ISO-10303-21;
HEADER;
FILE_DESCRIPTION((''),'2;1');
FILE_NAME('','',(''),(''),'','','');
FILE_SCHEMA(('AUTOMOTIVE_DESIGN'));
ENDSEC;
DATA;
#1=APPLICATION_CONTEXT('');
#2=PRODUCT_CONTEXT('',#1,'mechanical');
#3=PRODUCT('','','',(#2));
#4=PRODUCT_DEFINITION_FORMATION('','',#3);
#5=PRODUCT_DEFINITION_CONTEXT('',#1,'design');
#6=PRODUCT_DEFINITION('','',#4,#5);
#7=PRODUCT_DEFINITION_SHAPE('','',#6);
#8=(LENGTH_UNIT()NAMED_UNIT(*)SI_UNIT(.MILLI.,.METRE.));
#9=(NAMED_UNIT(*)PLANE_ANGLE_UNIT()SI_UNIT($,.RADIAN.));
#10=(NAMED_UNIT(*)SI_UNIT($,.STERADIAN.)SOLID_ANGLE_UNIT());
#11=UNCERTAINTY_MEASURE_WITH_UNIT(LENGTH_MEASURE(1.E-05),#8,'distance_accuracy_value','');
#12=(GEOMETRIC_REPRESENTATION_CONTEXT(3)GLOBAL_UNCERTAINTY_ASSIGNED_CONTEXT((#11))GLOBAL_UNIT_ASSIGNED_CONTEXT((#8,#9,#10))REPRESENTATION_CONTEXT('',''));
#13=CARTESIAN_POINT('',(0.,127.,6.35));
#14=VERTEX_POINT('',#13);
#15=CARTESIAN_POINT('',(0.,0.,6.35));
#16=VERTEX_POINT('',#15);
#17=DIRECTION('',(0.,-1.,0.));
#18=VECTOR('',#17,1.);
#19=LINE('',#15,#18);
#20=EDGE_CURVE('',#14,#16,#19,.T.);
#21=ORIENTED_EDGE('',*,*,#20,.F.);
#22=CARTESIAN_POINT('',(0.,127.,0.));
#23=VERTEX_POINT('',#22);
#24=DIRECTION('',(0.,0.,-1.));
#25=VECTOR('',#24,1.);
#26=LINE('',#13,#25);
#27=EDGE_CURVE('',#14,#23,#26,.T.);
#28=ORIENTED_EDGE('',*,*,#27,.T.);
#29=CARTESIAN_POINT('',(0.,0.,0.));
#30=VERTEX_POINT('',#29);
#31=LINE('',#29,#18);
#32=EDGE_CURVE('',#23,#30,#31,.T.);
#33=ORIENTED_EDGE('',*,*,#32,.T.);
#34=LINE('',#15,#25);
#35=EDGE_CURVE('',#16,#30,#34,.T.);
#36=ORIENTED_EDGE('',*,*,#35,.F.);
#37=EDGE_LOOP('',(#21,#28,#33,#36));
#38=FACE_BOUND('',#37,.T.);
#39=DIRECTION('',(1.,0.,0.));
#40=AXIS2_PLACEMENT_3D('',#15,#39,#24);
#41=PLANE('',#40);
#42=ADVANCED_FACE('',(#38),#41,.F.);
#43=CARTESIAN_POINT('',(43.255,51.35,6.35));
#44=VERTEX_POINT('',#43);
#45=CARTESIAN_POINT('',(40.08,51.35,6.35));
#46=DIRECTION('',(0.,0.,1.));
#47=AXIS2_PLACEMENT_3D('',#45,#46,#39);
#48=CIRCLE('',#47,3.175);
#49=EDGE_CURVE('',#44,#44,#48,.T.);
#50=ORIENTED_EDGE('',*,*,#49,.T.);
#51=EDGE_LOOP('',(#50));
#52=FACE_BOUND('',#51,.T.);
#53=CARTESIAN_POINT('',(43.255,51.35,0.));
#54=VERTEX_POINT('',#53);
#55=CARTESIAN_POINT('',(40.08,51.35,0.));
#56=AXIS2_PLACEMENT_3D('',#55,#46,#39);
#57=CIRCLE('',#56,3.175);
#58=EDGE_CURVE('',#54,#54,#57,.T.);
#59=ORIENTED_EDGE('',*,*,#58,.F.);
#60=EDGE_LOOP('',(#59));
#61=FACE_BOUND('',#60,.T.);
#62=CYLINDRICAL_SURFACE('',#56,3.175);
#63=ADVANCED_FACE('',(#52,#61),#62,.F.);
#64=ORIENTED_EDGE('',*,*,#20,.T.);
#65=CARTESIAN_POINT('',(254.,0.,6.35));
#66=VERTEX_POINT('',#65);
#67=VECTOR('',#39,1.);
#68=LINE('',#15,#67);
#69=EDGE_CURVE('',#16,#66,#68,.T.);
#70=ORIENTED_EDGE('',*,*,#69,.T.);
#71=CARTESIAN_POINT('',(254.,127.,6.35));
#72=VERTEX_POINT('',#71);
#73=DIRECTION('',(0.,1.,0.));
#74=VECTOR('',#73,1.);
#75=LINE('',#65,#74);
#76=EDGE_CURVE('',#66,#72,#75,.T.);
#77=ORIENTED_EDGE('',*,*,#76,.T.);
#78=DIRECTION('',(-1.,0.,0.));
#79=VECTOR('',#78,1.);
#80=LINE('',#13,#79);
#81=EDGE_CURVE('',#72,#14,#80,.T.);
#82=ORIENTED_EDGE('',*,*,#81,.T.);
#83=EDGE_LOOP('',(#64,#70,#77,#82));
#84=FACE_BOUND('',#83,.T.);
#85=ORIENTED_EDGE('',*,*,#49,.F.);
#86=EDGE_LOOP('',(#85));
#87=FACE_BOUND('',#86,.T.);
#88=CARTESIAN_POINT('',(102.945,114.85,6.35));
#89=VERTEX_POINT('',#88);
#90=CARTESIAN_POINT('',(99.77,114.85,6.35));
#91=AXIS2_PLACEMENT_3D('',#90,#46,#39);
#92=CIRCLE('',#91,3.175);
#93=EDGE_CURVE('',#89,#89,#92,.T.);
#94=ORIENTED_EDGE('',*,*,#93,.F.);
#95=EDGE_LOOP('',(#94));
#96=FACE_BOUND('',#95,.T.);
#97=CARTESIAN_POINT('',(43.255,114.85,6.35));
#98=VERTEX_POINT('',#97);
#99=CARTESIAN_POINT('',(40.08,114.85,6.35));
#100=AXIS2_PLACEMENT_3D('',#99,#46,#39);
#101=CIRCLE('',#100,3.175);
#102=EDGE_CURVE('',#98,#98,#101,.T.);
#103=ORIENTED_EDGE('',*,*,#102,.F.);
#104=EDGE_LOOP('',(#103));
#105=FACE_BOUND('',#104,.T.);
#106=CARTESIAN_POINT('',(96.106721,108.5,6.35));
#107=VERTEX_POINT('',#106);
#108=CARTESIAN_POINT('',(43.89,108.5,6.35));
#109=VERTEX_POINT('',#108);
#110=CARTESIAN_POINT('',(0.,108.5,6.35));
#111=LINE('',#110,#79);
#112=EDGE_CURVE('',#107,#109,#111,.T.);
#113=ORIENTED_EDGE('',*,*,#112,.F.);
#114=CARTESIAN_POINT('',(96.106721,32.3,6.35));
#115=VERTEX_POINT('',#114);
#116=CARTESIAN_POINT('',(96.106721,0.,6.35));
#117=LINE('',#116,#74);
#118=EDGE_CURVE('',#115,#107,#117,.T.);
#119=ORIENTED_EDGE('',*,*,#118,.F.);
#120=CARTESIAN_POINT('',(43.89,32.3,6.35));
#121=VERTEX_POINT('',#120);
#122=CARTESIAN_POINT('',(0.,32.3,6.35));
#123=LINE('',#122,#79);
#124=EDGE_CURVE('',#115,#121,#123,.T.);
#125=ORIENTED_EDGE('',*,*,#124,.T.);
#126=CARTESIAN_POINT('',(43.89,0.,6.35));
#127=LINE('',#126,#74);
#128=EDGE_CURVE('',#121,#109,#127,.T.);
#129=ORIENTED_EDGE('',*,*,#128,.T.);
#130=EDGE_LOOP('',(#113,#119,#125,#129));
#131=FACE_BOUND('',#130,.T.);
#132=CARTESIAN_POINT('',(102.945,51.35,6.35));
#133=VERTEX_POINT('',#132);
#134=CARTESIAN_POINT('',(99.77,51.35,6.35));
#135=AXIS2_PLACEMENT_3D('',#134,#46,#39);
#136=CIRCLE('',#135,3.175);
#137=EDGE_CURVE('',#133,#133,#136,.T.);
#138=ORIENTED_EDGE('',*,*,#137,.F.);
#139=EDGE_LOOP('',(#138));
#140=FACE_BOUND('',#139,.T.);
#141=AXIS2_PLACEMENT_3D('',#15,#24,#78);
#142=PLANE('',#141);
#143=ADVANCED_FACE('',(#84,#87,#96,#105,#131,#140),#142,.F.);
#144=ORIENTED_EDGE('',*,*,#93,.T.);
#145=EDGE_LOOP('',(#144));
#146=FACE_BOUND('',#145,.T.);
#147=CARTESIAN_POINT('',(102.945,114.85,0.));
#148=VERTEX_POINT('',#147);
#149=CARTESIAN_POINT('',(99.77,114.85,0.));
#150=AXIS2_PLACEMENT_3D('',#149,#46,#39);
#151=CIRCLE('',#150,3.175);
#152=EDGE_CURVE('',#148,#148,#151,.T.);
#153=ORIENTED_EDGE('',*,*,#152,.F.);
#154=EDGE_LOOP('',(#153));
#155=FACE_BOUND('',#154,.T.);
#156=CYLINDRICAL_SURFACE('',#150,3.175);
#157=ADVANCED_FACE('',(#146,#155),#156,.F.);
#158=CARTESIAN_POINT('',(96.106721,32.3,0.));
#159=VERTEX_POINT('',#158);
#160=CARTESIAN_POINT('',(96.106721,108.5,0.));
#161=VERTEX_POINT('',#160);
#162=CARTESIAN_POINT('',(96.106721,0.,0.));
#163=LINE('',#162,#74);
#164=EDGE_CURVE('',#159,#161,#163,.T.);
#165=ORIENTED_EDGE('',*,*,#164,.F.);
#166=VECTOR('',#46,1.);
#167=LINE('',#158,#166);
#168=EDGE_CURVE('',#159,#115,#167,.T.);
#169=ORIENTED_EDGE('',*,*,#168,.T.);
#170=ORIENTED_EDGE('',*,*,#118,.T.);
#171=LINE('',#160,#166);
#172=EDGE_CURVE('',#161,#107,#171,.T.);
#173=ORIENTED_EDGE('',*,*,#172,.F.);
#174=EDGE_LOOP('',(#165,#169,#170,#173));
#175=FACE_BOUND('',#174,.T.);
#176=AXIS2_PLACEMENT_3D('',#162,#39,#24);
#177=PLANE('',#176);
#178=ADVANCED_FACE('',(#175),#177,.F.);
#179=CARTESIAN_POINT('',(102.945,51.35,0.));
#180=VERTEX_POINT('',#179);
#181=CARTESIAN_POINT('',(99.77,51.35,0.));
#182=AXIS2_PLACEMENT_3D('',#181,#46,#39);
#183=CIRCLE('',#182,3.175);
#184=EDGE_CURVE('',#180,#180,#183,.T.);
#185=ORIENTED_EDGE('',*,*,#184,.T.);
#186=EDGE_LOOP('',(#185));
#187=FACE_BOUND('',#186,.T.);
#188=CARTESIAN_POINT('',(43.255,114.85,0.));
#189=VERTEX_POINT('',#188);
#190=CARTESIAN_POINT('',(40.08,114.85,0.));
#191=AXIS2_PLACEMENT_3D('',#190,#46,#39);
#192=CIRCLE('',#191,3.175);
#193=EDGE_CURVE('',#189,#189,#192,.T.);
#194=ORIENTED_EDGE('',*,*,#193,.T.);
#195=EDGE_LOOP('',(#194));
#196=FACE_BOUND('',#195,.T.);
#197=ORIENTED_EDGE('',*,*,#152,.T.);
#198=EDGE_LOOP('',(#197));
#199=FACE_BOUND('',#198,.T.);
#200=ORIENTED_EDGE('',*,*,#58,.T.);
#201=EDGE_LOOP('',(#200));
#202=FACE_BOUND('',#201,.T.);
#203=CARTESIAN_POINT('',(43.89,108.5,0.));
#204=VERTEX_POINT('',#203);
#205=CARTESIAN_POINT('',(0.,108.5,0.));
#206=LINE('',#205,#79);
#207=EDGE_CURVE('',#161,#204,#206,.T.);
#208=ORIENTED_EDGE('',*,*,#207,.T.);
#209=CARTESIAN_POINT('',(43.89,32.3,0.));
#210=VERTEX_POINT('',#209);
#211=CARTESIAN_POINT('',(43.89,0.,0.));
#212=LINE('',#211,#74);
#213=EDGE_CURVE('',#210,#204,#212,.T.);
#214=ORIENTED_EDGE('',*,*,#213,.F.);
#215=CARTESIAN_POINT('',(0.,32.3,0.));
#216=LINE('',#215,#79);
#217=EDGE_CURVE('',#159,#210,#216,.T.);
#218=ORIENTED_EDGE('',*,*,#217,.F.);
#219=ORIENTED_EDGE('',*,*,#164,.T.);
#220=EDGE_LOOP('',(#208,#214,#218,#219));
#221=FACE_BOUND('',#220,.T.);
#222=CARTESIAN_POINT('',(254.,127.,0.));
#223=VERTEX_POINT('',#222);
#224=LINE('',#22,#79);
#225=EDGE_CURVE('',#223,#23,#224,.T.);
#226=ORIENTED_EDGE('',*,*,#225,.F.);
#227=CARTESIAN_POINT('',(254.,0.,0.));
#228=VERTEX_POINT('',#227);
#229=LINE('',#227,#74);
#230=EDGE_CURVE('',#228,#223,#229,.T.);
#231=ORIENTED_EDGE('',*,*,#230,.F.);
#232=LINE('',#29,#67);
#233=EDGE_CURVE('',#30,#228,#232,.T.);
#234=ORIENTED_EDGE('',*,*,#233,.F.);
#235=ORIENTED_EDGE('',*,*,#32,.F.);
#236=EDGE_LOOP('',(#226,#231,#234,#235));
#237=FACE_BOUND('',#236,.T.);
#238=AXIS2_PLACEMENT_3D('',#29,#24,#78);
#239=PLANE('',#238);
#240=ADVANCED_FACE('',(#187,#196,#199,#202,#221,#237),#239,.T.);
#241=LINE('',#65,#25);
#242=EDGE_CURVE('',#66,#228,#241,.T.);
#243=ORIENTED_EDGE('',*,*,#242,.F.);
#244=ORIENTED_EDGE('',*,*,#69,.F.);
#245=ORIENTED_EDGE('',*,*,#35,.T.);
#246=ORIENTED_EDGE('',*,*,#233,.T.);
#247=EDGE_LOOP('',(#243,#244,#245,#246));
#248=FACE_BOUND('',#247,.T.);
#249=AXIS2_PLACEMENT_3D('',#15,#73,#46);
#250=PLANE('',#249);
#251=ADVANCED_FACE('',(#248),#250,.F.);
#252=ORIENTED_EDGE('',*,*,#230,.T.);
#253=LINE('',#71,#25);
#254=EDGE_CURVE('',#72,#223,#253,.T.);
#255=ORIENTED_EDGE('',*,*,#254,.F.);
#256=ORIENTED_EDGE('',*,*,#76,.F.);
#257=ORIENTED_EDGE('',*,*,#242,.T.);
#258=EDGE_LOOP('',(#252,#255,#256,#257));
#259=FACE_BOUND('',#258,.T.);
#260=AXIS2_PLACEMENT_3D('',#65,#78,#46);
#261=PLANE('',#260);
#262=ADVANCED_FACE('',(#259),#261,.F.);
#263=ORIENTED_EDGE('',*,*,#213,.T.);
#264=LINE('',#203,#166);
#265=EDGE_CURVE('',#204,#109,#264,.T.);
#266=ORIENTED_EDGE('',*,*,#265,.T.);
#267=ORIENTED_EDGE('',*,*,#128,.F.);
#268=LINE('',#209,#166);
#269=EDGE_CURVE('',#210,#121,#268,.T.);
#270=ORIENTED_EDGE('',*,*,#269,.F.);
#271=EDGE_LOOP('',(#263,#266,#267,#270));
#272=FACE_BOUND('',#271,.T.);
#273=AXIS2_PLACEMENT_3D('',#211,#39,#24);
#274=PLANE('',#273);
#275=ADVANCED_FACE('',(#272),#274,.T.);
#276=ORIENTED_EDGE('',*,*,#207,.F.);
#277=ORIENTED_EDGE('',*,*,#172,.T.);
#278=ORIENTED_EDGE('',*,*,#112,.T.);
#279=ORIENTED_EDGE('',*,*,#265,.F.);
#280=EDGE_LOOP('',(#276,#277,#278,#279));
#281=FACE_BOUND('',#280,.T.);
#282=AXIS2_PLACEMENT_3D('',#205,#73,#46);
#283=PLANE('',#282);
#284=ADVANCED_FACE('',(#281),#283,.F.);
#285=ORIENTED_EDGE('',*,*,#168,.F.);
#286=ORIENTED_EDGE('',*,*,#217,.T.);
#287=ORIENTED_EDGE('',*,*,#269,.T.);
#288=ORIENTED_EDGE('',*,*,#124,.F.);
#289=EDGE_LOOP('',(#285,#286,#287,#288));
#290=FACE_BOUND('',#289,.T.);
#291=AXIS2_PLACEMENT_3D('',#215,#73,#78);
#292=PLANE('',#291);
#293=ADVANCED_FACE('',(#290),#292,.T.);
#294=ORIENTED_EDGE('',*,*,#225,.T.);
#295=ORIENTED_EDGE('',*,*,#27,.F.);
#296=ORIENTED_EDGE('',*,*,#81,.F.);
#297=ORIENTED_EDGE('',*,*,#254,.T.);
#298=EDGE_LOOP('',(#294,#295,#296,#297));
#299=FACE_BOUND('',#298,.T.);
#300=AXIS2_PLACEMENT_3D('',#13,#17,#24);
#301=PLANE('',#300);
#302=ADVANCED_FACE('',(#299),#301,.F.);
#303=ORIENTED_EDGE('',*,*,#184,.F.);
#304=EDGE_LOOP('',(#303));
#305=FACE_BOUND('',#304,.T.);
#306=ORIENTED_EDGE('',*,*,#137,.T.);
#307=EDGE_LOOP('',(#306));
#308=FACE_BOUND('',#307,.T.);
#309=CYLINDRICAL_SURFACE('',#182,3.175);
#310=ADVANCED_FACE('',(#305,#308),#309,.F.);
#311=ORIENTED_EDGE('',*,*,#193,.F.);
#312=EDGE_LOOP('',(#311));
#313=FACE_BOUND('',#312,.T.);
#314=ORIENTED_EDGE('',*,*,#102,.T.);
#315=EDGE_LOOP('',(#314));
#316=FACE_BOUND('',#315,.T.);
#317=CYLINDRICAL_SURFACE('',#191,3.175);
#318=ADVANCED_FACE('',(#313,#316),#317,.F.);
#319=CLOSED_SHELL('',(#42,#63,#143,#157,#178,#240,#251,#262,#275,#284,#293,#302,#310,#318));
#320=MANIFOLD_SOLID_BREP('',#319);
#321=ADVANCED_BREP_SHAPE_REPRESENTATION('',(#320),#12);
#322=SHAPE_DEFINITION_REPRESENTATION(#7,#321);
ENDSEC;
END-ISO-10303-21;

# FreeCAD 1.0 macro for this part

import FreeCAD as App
import Part
import Sketcher
from FreeCAD import Vector
Q = App.Units.Quantity


def add_polygon(sketch, points):
    """Adds a closed chain of lines whose ends are joined by coincident constraints."""
    first, n = sketch.GeometryCount, len(points)
    for a, b in zip(points, points[1:] + points[:1]):
        sketch.addGeometry(Part.LineSegment(App.Vector(*a, 0), App.Vector(*b, 0)), False)
    for i in range(n):
        sketch.addConstraint(Sketcher.Constraint("Coincident", first + i, 2, first + (i + 1) % n, 1))

doc = App.newDocument("Part")
params = doc.addObject("Spreadsheet::Sheet", "Params")
for row, (alias, value) in enumerate([
    ("sketch1_width", "10 in"),
    ("sketch1_height", "5 in"),
    ("pad1_length", "0.25 in"),
    ("sketch2_diameter", "0.25 in"),
    ("sketch2_height", "3 in"),
    ("pocket1_length", "285.051619 mm"),
], start=1):
    params.set(f"A{row}", alias)
    params.set(f"B{row}", "=" + value)
    params.setAlias(f"B{row}", alias)

body = doc.addObject("PartDesign::Body", "Body")

# Sketch on XY plane
sketch1 = doc.addObject("Sketcher::SketchObject", "Sketch")
body.addObject(sketch1)
sketch1.AttachmentSupport = (doc.XY_Plane, [""])
sketch1.MapMode = "FlatFace"
add_polygon(sketch1, [(0, 127), (0, 0), (254, 0), (254, 127)])  # lines 0-3
sketch1.addConstraint([
    Sketcher.Constraint("Vertical", 0),
    Sketcher.Constraint("Horizontal", 1),
    Sketcher.Constraint("Vertical", 2),
    Sketcher.Constraint("Horizontal", 3),
    Sketcher.Constraint("Coincident", 0, 2, -1, 1),
    Sketcher.Constraint("DistanceX", 1, 1, 1, 2, Q("10 in")),
    Sketcher.Constraint("DistanceY", 0, 2, 0, 1, Q("5 in")),
])
sketch1.setExpression("Constraints[9]", "Params.sketch1_width")
sketch1.setExpression("Constraints[10]", "Params.sketch1_height")
pad1 = doc.addObject("PartDesign::Pad", "Pad")
body.addObject(pad1)
pad1.Profile = sketch1
pad1.setExpression("Length", "Params.pad1_length")

# Sketch on XY plane
sketch2 = doc.addObject("Sketcher::SketchObject", "Sketch001")
body.addObject(sketch2)
sketch2.AttachmentSupport = (doc.XY_Plane, [""])
sketch2.MapMode = "FlatFace"
sketch2.AttachmentOffset = App.Placement(Vector(0, 0, 0.25 * 25.4), App.Rotation())
add_polygon(sketch2, [(43.89, 108.5), (43.89, 32.3), (96.106721, 32.3), (96.106721, 108.5)])  # lines 0-3
sketch2.addGeometry(Part.Circle(Vector(99.77, 51.35, 0), Vector(0, 0, 1), 3.175), False)  # 4
sketch2.addGeometry(Part.Circle(Vector(40.08, 51.35, 0), Vector(0, 0, 1), 3.175), False)  # 5
sketch2.addGeometry(Part.Circle(Vector(99.77, 114.85, 0), Vector(0, 0, 1), 3.175), False)  # 6
sketch2.addGeometry(Part.Circle(Vector(40.08, 114.85, 0), Vector(0, 0, 1), 3.175), False)  # 7
sketch2.addConstraint([
    Sketcher.Constraint("Vertical", 0),
    Sketcher.Constraint("Horizontal", 1),
    Sketcher.Constraint("Vertical", 2),
    Sketcher.Constraint("Horizontal", 3),
    Sketcher.Constraint("Equal", 4, 5),
    Sketcher.Constraint("Equal", 5, 6),
    Sketcher.Constraint("Equal", 6, 7),
    Sketcher.Constraint("Horizontal", 4, 3, 5, 3),
    Sketcher.Constraint("Horizontal", 6, 3, 7, 3),
    Sketcher.Constraint("Vertical", 4, 3, 6, 3),
    Sketcher.Constraint("Vertical", 5, 3, 7, 3),
    Sketcher.Constraint("Diameter", 4, Q("0.25 in")),
    Sketcher.Constraint("DistanceY", 0, 2, 0, 1, Q("3 in")),
    Sketcher.Constraint("DistanceY", 4, 3, 6, 3, Q("2.5 in")),
    Sketcher.Constraint("DistanceX", 0, 2, 4, 3, Q("2.2 in")),
    Sketcher.Constraint("DistanceX", 5, 3, 4, 3, Q("2.35 in")),
    Sketcher.Constraint("DistanceY", 0, 2, 5, 3, Q("0.75 in")),
    Sketcher.Constraint("DistanceX", 1, 1, 1, 2, 52.216721),
    Sketcher.Constraint("DistanceX", -1, 1, 4, 3, 99.77),
    Sketcher.Constraint("DistanceY", -1, 1, 4, 3, 51.35),
])
sketch2.setExpression("Constraints[15]", "Params.sketch2_diameter")
sketch2.setExpression("Constraints[16]", "Params.sketch2_height")
pocket1 = doc.addObject("PartDesign::Pocket", "Pocket")
body.addObject(pocket1)
pocket1.Profile = sketch2
pocket1.setExpression("Length", "Params.pocket1_length")

doc.recompute()
